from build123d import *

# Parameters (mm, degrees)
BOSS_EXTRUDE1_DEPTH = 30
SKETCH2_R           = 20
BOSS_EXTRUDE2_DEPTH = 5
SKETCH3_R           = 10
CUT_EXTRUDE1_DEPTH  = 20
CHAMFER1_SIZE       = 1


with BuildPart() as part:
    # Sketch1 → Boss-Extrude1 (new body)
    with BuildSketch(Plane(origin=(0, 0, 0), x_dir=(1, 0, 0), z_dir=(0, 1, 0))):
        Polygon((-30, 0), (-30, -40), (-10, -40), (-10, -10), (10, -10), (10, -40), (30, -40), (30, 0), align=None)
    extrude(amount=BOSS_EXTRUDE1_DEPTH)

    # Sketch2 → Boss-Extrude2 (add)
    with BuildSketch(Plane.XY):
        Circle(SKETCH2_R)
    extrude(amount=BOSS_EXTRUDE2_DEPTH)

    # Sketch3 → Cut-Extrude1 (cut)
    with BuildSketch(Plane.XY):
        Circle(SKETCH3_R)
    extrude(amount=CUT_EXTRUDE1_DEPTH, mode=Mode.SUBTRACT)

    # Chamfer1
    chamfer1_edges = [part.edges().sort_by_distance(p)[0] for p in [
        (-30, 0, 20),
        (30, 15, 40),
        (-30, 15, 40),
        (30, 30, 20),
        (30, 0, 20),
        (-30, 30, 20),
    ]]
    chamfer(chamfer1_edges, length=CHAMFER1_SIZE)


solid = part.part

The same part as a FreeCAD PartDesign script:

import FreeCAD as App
import Part
import Sketcher

V = App.Vector


def edges_at(feature, points):
    """Names of the edges that pass closest to the given points."""
    edges = feature.Shape.Edges
    near = lambda p: min(range(len(edges)), key=lambda i: edges[i].distToShape(Part.Vertex(*p))[0])
    return sorted({f"Edge{near(p) + 1}" for p in points})


def add_polygon(sketch, points):
    """Adds a closed chain of lines whose ends are joined by coincident constraints."""
    first, n = sketch.GeometryCount, len(points)
    for a, b in zip(points, points[1:] + points[:1]):
        sketch.addGeometry(Part.LineSegment(App.Vector(*a, 0), App.Vector(*b, 0)), False)
    for i in range(n):
        sketch.addConstraint(Sketcher.Constraint("Coincident", first + i, 2, first + (i + 1) % n, 1))

doc = App.newDocument("Part")
params = doc.addObject("Spreadsheet::Sheet", "Params")
for row, (alias, value) in enumerate([
    ("sketch1_width", "20 mm"),
    ("sketch1_height", "40 mm"),
    ("sketch1_height2", "30 mm"),
    ("pad1_length", "30 mm"),
    ("sketch2_diameter", "40 mm"),
    ("pad2_length", "5 mm"),
    ("sketch3_diameter", "20 mm"),
    ("pocket1_length", "20 mm"),
    ("chamfer_size", "1 mm"),
], start=1):
    params.set(f"A{row}", alias)
    params.set(f"B{row}", "=" + value)
    params.setAlias(f"B{row}", alias)

body = doc.addObject("PartDesign::Body", "Body")

# Sketch on XZ plane
sketch1 = body.newObject("Sketcher::SketchObject", "Sketch")
sketch1.AttachmentSupport = (doc.getObject("XZ_Plane"), [""])
sketch1.MapMode = "FlatFace"
add_polygon(sketch1, [(-30, 0), (-30, 40), (-10, 40), (-10, 10), (10, 10), (10, 40), (30, 40), (30, 0)])  # lines 0-7
sketch1.addConstraint([
    Sketcher.Constraint("Vertical", 0),
    Sketcher.Constraint("Horizontal", 1),
    Sketcher.Constraint("Vertical", 2),
    Sketcher.Constraint("Horizontal", 3),
    Sketcher.Constraint("Vertical", 4),
    Sketcher.Constraint("Horizontal", 5),
    Sketcher.Constraint("Vertical", 6),
    Sketcher.Constraint("Horizontal", 7),
    Sketcher.Constraint("Symmetric", 6, 2, 7, 2, -1, 1),
    Sketcher.Constraint("Symmetric", 1, 2, 4, 2, -2),
    Sketcher.Constraint("Equal", 1, 3),
    Sketcher.Constraint("DistanceX", 1, 1, 1, 2, 20.0),
    Sketcher.Constraint("DistanceY", 0, 1, 0, 2, 40.0),
    Sketcher.Constraint("DistanceY", 2, 2, 2, 1, 30.0),
])
sketch1.setExpression("Constraints[19]", "Params.sketch1_width")
sketch1.setExpression("Constraints[20]", "Params.sketch1_height")
sketch1.setExpression("Constraints[21]", "Params.sketch1_height2")
pad1 = body.newObject("PartDesign::Pad", "Pad")
pad1.Profile = sketch1
pad1.setExpression("Length", "Params.pad1_length")
pad1.Reversed = True

# Sketch on XY plane
sketch2 = body.newObject("Sketcher::SketchObject", "Sketch001")
sketch2.AttachmentSupport = (doc.getObject("XY_Plane"), [""])
sketch2.MapMode = "FlatFace"
sketch2.addGeometry(Part.Circle(V(0, 0, 0), V(0, 0, 1), 20), False)
sketch2.addConstraint([
    Sketcher.Constraint("Coincident", 0, 3, -1, 1),
    Sketcher.Constraint("Diameter", 0, 40.0),
])
sketch2.setExpression("Constraints[1]", "Params.sketch2_diameter")
pad2 = body.newObject("PartDesign::Pad", "Pad001")
pad2.Profile = sketch2
pad2.setExpression("Length", "Params.pad2_length")

# Sketch on XY plane
sketch3 = body.newObject("Sketcher::SketchObject", "Sketch002")
sketch3.AttachmentSupport = (doc.getObject("XY_Plane"), [""])
sketch3.MapMode = "FlatFace"
sketch3.addGeometry(Part.Circle(V(0, 0, 0), V(0, 0, 1), 10), False)
sketch3.addConstraint([
    Sketcher.Constraint("Coincident", 0, 3, -1, 1),
    Sketcher.Constraint("Diameter", 0, 20.0),
])
sketch3.setExpression("Constraints[1]", "Params.sketch3_diameter")
pocket1 = body.newObject("PartDesign::Pocket", "Pocket")
pocket1.Profile = sketch3
pocket1.setExpression("Length", "Params.pocket1_length")
pocket1.Reversed = True
doc.recompute()

chamfer = body.newObject("PartDesign::Chamfer", "Chamfer")
chamfer.Base = (pocket1, edges_at(pocket1, [
    (-30, 0, 20),
    (30, 15, 40),
    (-30, 15, 40),
    (30, 30, 20),
    (30, 0, 20),
    (-30, 30, 20),
]))
chamfer.setExpression("Size", "Params.chamfer_size")

doc.recompute()
